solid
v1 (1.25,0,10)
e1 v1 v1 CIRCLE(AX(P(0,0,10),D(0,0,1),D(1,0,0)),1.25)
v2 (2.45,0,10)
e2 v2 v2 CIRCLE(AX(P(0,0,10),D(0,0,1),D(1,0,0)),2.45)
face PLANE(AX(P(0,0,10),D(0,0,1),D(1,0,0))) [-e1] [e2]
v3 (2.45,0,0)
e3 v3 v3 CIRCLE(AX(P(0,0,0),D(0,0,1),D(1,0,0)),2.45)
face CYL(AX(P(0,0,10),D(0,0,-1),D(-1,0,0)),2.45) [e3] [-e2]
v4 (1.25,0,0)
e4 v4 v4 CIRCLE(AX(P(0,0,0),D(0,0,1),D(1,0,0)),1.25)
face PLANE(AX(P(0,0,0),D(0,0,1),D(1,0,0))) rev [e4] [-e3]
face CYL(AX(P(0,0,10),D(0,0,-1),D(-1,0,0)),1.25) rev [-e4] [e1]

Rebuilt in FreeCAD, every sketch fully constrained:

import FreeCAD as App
import Part
import Sketcher

doc = App.newDocument("Part")
params = doc.addObject("Spreadsheet::Sheet", "Params")
for row, (alias, value) in enumerate([
    ("sketch1_diameter", "4.9 mm"),
    ("sketch1_diameter2", "2.5 mm"),
    ("pad1_length", "10 mm"),
], start=1):
    params.set(f"A{row}", alias)
    params.set(f"B{row}", "=" + value)
    params.setAlias(f"B{row}", alias)

body = doc.addObject("PartDesign::Body", "Body")

sketch1 = body.newObject("Sketcher::SketchObject", "Sketch")
sketch1.AttachmentSupport = (doc.getObject("XY_Plane"), [""])
sketch1.MapMode = "FlatFace"
sketch1.addGeometry(Part.Circle(App.Vector(0, 0, 0), App.Vector(0, 0, 1), 2.5), False)
sketch1.addGeometry(Part.Circle(App.Vector(0, 0, 0), App.Vector(0, 0, 1), 1.2), False)
sketch1.addConstraint(Sketcher.Constraint("Coincident", 0, 3, -1, 1))
sketch1.addConstraint(Sketcher.Constraint("Coincident", 1, 3, -1, 1))
sketch1.addConstraint(Sketcher.Constraint("Diameter", 0, 4.9))
sketch1.addConstraint(Sketcher.Constraint("Diameter", 1, 2.5))
sketch1.setExpression("Constraints[2]", "Params.sketch1_diameter")
sketch1.setExpression("Constraints[3]", "Params.sketch1_diameter2")
pad1 = body.newObject("PartDesign::Pad", "Pad")
pad1.Profile = sketch1
pad1.setExpression("Length", "Params.pad1_length")

doc.recompute()
